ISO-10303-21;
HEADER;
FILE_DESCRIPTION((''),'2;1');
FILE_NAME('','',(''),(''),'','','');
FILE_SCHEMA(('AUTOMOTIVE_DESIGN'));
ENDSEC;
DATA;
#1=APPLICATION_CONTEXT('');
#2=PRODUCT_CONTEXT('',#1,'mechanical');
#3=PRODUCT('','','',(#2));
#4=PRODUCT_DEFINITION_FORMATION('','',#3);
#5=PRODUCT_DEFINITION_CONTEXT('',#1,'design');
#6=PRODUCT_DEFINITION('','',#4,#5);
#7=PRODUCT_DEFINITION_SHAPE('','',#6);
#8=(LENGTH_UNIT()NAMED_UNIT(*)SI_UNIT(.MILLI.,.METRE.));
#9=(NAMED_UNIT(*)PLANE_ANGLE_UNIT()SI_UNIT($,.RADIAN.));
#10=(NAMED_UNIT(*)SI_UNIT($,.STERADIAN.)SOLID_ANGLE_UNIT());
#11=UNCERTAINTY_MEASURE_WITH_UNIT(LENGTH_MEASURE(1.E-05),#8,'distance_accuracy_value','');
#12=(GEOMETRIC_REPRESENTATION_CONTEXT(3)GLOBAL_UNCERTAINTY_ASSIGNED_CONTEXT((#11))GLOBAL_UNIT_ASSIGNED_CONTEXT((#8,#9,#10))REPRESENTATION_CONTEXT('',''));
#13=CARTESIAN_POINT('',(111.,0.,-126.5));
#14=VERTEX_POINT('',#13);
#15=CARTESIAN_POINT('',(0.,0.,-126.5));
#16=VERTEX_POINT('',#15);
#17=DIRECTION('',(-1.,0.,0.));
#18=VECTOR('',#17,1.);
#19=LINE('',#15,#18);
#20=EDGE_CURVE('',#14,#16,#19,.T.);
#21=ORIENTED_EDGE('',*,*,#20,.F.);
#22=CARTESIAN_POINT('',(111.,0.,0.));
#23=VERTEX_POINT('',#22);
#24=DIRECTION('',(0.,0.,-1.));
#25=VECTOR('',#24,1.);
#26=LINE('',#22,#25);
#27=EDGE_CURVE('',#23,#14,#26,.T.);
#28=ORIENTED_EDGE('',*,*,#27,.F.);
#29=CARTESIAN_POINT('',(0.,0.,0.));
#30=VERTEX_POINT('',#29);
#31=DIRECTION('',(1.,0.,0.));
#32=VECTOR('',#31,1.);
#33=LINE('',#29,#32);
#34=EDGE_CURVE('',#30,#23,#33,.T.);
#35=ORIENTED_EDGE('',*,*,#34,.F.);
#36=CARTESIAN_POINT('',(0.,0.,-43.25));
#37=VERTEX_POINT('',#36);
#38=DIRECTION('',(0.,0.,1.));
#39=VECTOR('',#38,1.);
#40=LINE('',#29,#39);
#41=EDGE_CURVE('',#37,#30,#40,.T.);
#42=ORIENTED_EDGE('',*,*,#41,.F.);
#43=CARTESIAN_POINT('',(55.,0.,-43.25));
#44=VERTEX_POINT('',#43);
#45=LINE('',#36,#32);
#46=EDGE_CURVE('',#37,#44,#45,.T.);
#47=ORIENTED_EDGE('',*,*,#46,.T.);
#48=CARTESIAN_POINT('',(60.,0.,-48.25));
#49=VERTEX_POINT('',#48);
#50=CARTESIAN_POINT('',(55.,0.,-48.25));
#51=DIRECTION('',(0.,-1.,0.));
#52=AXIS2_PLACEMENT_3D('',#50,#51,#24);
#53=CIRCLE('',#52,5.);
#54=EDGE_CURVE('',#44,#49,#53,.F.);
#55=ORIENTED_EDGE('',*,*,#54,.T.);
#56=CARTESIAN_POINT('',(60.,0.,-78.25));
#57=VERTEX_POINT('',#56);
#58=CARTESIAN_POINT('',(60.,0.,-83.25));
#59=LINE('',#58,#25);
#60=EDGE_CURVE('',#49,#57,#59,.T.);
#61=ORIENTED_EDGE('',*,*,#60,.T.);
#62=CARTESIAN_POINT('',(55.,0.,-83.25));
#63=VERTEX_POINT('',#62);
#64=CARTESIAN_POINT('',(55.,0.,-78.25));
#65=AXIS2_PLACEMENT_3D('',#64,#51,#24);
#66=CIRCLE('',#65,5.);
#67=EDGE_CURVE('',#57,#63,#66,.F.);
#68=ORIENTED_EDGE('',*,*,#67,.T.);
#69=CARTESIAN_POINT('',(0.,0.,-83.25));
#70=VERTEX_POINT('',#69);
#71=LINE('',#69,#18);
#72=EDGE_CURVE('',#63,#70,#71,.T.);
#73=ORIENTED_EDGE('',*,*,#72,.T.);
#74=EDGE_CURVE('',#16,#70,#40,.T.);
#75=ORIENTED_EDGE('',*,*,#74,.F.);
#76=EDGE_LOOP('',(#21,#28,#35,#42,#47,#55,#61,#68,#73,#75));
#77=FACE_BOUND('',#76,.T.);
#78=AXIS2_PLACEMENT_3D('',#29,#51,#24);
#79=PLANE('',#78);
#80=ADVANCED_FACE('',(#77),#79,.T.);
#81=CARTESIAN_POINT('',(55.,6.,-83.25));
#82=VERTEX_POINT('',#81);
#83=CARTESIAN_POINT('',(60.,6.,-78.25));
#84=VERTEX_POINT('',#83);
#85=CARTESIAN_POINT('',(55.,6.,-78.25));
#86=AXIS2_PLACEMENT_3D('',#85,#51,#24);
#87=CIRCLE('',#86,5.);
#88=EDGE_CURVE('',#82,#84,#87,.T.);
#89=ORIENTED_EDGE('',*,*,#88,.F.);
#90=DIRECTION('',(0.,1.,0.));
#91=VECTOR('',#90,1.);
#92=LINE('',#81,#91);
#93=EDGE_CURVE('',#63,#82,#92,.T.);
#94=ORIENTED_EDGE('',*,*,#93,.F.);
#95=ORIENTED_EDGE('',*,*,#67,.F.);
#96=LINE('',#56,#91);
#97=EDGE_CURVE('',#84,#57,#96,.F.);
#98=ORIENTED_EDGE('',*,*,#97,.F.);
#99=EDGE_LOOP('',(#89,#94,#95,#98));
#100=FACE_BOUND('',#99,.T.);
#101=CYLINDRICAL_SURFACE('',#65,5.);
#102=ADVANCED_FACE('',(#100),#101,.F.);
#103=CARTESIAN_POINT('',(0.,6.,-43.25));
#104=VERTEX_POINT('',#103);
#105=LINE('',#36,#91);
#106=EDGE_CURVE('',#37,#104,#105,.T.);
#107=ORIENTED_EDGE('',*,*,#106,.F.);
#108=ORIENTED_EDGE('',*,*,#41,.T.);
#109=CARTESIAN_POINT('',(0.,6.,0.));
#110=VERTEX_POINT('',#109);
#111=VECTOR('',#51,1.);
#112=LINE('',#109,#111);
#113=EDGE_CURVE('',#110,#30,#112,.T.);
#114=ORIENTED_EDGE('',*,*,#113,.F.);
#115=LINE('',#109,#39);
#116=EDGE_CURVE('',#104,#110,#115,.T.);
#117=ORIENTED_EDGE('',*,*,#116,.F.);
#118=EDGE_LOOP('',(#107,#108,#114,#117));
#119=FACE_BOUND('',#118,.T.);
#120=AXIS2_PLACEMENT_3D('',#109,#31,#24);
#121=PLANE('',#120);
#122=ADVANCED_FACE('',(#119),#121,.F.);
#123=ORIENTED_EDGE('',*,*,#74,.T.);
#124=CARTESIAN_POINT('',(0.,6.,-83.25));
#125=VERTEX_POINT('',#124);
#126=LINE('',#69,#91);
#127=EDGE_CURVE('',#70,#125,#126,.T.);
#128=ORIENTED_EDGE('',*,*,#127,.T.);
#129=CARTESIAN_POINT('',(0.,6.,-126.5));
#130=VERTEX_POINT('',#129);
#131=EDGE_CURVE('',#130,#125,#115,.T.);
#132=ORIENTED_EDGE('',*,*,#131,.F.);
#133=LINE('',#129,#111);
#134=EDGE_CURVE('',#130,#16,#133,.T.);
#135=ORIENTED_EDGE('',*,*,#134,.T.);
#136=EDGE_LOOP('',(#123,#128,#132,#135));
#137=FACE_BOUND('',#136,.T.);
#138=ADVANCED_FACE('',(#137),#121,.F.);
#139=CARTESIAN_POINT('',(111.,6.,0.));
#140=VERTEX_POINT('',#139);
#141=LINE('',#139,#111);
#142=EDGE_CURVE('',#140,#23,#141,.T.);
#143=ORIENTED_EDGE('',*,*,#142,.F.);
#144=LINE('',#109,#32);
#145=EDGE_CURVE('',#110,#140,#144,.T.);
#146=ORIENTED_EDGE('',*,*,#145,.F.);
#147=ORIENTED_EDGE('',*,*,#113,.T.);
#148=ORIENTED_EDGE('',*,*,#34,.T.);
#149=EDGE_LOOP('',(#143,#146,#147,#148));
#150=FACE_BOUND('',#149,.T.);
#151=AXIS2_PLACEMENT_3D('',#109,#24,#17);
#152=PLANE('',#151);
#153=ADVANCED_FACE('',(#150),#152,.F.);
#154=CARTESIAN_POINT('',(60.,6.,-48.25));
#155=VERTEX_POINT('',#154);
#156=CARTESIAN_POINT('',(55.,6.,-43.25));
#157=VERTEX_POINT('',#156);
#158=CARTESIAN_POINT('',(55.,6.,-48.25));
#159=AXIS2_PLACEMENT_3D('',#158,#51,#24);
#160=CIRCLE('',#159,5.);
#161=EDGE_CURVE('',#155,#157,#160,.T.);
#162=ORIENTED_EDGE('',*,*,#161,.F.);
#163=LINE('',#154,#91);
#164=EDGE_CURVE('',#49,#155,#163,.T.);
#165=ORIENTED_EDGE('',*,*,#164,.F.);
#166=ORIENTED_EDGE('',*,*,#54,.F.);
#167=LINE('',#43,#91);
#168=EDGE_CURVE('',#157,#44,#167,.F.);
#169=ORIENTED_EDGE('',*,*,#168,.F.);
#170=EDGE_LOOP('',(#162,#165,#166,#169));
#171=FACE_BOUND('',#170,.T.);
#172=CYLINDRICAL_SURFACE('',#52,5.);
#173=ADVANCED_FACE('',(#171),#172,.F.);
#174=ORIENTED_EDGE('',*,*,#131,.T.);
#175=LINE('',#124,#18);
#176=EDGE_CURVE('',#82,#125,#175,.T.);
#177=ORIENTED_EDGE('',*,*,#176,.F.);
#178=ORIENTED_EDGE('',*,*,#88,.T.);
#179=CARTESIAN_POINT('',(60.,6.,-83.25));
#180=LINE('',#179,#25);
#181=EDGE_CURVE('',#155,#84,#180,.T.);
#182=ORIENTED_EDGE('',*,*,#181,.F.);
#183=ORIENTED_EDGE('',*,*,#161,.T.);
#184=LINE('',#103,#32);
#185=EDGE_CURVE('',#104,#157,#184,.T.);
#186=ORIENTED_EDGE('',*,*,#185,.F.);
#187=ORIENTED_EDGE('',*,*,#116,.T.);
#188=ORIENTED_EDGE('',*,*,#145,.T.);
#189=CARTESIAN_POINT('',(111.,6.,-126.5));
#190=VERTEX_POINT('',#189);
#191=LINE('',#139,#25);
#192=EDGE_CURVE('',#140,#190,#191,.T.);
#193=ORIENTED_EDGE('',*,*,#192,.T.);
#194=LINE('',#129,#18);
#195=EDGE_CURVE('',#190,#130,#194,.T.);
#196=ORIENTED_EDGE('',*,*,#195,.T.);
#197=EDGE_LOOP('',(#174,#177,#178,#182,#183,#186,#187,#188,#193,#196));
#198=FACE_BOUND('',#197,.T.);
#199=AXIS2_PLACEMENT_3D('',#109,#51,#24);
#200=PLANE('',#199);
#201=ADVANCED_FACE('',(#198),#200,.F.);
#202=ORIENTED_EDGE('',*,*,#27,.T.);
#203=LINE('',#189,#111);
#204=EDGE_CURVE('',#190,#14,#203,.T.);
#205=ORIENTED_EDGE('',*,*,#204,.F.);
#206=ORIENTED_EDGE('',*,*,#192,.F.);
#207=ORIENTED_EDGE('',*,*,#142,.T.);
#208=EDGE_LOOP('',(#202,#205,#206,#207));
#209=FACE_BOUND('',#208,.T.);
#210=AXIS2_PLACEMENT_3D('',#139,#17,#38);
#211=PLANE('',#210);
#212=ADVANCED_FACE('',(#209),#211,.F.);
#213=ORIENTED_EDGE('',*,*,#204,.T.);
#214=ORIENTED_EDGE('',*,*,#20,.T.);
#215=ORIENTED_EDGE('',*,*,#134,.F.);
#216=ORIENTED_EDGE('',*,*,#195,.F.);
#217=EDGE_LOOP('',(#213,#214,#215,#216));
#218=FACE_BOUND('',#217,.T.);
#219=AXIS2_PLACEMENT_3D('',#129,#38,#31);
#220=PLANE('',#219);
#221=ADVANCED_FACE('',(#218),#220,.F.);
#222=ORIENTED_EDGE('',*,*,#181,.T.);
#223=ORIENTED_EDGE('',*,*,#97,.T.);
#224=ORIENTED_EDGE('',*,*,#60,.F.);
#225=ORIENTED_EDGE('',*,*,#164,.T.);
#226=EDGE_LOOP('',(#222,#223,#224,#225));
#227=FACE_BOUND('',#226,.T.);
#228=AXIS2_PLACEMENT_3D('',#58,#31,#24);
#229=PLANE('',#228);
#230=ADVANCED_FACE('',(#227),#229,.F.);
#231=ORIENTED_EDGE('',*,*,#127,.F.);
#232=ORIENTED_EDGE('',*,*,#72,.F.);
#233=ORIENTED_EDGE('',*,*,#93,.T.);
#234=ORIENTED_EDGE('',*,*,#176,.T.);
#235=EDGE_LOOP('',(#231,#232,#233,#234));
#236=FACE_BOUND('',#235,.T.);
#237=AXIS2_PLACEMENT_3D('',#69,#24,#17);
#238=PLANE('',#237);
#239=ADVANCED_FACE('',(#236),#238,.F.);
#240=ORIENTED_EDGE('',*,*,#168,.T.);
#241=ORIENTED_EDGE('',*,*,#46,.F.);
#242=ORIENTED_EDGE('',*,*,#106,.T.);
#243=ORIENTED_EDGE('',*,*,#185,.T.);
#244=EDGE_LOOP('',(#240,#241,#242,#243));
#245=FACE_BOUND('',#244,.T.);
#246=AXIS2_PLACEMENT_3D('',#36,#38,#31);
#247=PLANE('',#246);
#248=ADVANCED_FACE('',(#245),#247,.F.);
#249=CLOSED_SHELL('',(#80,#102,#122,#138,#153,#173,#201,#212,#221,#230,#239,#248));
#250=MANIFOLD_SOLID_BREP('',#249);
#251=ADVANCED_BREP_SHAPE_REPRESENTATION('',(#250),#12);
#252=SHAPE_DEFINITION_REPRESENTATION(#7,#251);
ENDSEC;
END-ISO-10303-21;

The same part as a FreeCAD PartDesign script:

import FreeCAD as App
import Part
import Sketcher

V = App.Vector
Q = App.Units.Quantity


def edges_at(feature, points):
    """Names of the edges that pass closest to the given points."""
    edges = feature.Shape.Edges
    near = lambda p: min(range(len(edges)), key=lambda i: edges[i].distToShape(Part.Vertex(*p))[0])
    return sorted({f"Edge{near(p) + 1}" for p in points})

doc = App.newDocument("Part")
body = doc.addObject("PartDesign::Body", "Body")

# Sketch on XZ plane
sketch1 = body.newObject("Sketcher::SketchObject", "Sketch")
sketch1.AttachmentSupport = (doc.getObject("XZ_Plane"), [""])
sketch1.MapMode = "FlatFace"
sketch1.addGeometry([
    Part.LineSegment(V(0, -126.5, 0), V(0, 0, 0)),
    Part.LineSegment(V(0, 0, 0), V(111, 0, 0)),
    Part.LineSegment(V(111, 0, 0), V(111, -126.5, 0)),
    Part.LineSegment(V(111, -126.5, 0), V(0, -126.5, 0)),
], False)
sketch1.addConstraint([
    Sketcher.Constraint("Coincident", 0, 2, 1, 1),
    Sketcher.Constraint("Coincident", 1, 2, 2, 1),
    Sketcher.Constraint("Coincident", 2, 2, 3, 1),
    Sketcher.Constraint("Coincident", 3, 2, 0, 1),
    Sketcher.Constraint("Vertical", 0),
    Sketcher.Constraint("Horizontal", 1),
    Sketcher.Constraint("Vertical", 2),
    Sketcher.Constraint("Horizontal", 3),
    Sketcher.Constraint("Coincident", 0, 2, -1, 1),
    Sketcher.Constraint("DistanceX", 1, 1, 1, 2, Q("111 mm")),
    Sketcher.Constraint("DistanceY", 0, 1, 0, 2, Q("126.5 mm")),
])
pad1 = body.newObject("PartDesign::Pad", "Pad")
pad1.Profile = sketch1
pad1.Length = 6
pad1.Reversed = True

# Sketch on XZ plane
sketch2 = body.newObject("Sketcher::SketchObject", "Sketch001")
sketch2.AttachmentSupport = (doc.getObject("XZ_Plane"), [""])
sketch2.MapMode = "FlatFace"
sketch2.AttachmentOffset = App.Placement(V(0, 0, -6), App.Rotation())
sketch2.addGeometry([
    Part.LineSegment(V(0, -83.25, 0), V(0, -43.25, 0)),
    Part.LineSegment(V(0, -43.25, 0), V(60, -43.25, 0)),
    Part.LineSegment(V(60, -43.25, 0), V(60, -83.25, 0)),
    Part.LineSegment(V(60, -83.25, 0), V(0, -83.25, 0)),
], False)
sketch2.addConstraint([
    Sketcher.Constraint("Coincident", 0, 2, 1, 1),
    Sketcher.Constraint("Coincident", 1, 2, 2, 1),
    Sketcher.Constraint("Coincident", 2, 2, 3, 1),
    Sketcher.Constraint("Coincident", 3, 2, 0, 1),
    Sketcher.Constraint("Vertical", 0),
    Sketcher.Constraint("Horizontal", 1),
    Sketcher.Constraint("Vertical", 2),
    Sketcher.Constraint("Horizontal", 3),
    Sketcher.Constraint("PointOnObject", 0, 2, -2),
    Sketcher.Constraint("DistanceX", 1, 1, 1, 2, Q("60 mm")),
    Sketcher.Constraint("DistanceY", 0, 1, 0, 2, Q("40 mm")),
    Sketcher.Constraint("DistanceY", 0, 2, -1, 1, Q("43.25 mm")),
])
pocket1 = body.newObject("PartDesign::Pocket", "Pocket")
pocket1.Profile = sketch2
pocket1.Type = "ThroughAll"
pocket1.Reversed = True
doc.recompute()

fillet = body.newObject("PartDesign::Fillet", "Fillet")
fillet.Base = (pocket1, edges_at(pocket1, [(60, 3, -83.25), (60, 3, -43.25)]))
fillet.Radius = 5

doc.recompute()
